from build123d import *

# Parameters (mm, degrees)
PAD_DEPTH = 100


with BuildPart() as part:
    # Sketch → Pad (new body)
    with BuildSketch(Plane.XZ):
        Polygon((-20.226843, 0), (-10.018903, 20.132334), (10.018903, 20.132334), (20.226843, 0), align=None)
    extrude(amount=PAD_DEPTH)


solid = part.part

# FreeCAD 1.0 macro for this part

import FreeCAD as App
import Part
import Sketcher

V = App.Vector

doc = App.newDocument("Part")
body = doc.addObject("PartDesign::Body", "Body")

# Sketch on XZ plane
sketch1 = body.newObject("Sketcher::SketchObject", "Sketch")
sketch1.AttachmentSupport = (doc.getObject("XZ_Plane"), [""])
sketch1.MapMode = "FlatFace"
sketch1.addGeometry([
    Part.LineSegment(V(-10, 20, 0), V(-20, 0, 0)),
    Part.LineSegment(V(-20, 0, 0), V(20, 0, 0)),
    Part.LineSegment(V(20, 0, 0), V(10, 20, 0)),
    Part.LineSegment(V(10, 20, 0), V(-10, 20, 0)),
], False)
sketch1.addConstraint([
    Sketcher.Constraint("Coincident", 0, 2, 1, 1),
    Sketcher.Constraint("Coincident", 1, 2, 2, 1),
    Sketcher.Constraint("Coincident", 2, 2, 3, 1),
    Sketcher.Constraint("Coincident", 3, 2, 0, 1),
    Sketcher.Constraint("Horizontal", 1),
    Sketcher.Constraint("Horizontal", 3),
    Sketcher.Constraint("Symmetric", 0, 2, 1, 2, -1, 1),
    Sketcher.Constraint("Equal", 0, 2),
    Sketcher.Constraint("DistanceX", 1, 1, 1, 2, 40.453686),
    Sketcher.Constraint("DistanceX", 3, 2, 3, 1, 20.037806),
    Sketcher.Constraint("Distance", 0, 22.572393),
])
pad1 = body.newObject("PartDesign::Pad", "Pad")
pad1.Profile = sketch1
pad1.Length = 100

doc.recompute()
